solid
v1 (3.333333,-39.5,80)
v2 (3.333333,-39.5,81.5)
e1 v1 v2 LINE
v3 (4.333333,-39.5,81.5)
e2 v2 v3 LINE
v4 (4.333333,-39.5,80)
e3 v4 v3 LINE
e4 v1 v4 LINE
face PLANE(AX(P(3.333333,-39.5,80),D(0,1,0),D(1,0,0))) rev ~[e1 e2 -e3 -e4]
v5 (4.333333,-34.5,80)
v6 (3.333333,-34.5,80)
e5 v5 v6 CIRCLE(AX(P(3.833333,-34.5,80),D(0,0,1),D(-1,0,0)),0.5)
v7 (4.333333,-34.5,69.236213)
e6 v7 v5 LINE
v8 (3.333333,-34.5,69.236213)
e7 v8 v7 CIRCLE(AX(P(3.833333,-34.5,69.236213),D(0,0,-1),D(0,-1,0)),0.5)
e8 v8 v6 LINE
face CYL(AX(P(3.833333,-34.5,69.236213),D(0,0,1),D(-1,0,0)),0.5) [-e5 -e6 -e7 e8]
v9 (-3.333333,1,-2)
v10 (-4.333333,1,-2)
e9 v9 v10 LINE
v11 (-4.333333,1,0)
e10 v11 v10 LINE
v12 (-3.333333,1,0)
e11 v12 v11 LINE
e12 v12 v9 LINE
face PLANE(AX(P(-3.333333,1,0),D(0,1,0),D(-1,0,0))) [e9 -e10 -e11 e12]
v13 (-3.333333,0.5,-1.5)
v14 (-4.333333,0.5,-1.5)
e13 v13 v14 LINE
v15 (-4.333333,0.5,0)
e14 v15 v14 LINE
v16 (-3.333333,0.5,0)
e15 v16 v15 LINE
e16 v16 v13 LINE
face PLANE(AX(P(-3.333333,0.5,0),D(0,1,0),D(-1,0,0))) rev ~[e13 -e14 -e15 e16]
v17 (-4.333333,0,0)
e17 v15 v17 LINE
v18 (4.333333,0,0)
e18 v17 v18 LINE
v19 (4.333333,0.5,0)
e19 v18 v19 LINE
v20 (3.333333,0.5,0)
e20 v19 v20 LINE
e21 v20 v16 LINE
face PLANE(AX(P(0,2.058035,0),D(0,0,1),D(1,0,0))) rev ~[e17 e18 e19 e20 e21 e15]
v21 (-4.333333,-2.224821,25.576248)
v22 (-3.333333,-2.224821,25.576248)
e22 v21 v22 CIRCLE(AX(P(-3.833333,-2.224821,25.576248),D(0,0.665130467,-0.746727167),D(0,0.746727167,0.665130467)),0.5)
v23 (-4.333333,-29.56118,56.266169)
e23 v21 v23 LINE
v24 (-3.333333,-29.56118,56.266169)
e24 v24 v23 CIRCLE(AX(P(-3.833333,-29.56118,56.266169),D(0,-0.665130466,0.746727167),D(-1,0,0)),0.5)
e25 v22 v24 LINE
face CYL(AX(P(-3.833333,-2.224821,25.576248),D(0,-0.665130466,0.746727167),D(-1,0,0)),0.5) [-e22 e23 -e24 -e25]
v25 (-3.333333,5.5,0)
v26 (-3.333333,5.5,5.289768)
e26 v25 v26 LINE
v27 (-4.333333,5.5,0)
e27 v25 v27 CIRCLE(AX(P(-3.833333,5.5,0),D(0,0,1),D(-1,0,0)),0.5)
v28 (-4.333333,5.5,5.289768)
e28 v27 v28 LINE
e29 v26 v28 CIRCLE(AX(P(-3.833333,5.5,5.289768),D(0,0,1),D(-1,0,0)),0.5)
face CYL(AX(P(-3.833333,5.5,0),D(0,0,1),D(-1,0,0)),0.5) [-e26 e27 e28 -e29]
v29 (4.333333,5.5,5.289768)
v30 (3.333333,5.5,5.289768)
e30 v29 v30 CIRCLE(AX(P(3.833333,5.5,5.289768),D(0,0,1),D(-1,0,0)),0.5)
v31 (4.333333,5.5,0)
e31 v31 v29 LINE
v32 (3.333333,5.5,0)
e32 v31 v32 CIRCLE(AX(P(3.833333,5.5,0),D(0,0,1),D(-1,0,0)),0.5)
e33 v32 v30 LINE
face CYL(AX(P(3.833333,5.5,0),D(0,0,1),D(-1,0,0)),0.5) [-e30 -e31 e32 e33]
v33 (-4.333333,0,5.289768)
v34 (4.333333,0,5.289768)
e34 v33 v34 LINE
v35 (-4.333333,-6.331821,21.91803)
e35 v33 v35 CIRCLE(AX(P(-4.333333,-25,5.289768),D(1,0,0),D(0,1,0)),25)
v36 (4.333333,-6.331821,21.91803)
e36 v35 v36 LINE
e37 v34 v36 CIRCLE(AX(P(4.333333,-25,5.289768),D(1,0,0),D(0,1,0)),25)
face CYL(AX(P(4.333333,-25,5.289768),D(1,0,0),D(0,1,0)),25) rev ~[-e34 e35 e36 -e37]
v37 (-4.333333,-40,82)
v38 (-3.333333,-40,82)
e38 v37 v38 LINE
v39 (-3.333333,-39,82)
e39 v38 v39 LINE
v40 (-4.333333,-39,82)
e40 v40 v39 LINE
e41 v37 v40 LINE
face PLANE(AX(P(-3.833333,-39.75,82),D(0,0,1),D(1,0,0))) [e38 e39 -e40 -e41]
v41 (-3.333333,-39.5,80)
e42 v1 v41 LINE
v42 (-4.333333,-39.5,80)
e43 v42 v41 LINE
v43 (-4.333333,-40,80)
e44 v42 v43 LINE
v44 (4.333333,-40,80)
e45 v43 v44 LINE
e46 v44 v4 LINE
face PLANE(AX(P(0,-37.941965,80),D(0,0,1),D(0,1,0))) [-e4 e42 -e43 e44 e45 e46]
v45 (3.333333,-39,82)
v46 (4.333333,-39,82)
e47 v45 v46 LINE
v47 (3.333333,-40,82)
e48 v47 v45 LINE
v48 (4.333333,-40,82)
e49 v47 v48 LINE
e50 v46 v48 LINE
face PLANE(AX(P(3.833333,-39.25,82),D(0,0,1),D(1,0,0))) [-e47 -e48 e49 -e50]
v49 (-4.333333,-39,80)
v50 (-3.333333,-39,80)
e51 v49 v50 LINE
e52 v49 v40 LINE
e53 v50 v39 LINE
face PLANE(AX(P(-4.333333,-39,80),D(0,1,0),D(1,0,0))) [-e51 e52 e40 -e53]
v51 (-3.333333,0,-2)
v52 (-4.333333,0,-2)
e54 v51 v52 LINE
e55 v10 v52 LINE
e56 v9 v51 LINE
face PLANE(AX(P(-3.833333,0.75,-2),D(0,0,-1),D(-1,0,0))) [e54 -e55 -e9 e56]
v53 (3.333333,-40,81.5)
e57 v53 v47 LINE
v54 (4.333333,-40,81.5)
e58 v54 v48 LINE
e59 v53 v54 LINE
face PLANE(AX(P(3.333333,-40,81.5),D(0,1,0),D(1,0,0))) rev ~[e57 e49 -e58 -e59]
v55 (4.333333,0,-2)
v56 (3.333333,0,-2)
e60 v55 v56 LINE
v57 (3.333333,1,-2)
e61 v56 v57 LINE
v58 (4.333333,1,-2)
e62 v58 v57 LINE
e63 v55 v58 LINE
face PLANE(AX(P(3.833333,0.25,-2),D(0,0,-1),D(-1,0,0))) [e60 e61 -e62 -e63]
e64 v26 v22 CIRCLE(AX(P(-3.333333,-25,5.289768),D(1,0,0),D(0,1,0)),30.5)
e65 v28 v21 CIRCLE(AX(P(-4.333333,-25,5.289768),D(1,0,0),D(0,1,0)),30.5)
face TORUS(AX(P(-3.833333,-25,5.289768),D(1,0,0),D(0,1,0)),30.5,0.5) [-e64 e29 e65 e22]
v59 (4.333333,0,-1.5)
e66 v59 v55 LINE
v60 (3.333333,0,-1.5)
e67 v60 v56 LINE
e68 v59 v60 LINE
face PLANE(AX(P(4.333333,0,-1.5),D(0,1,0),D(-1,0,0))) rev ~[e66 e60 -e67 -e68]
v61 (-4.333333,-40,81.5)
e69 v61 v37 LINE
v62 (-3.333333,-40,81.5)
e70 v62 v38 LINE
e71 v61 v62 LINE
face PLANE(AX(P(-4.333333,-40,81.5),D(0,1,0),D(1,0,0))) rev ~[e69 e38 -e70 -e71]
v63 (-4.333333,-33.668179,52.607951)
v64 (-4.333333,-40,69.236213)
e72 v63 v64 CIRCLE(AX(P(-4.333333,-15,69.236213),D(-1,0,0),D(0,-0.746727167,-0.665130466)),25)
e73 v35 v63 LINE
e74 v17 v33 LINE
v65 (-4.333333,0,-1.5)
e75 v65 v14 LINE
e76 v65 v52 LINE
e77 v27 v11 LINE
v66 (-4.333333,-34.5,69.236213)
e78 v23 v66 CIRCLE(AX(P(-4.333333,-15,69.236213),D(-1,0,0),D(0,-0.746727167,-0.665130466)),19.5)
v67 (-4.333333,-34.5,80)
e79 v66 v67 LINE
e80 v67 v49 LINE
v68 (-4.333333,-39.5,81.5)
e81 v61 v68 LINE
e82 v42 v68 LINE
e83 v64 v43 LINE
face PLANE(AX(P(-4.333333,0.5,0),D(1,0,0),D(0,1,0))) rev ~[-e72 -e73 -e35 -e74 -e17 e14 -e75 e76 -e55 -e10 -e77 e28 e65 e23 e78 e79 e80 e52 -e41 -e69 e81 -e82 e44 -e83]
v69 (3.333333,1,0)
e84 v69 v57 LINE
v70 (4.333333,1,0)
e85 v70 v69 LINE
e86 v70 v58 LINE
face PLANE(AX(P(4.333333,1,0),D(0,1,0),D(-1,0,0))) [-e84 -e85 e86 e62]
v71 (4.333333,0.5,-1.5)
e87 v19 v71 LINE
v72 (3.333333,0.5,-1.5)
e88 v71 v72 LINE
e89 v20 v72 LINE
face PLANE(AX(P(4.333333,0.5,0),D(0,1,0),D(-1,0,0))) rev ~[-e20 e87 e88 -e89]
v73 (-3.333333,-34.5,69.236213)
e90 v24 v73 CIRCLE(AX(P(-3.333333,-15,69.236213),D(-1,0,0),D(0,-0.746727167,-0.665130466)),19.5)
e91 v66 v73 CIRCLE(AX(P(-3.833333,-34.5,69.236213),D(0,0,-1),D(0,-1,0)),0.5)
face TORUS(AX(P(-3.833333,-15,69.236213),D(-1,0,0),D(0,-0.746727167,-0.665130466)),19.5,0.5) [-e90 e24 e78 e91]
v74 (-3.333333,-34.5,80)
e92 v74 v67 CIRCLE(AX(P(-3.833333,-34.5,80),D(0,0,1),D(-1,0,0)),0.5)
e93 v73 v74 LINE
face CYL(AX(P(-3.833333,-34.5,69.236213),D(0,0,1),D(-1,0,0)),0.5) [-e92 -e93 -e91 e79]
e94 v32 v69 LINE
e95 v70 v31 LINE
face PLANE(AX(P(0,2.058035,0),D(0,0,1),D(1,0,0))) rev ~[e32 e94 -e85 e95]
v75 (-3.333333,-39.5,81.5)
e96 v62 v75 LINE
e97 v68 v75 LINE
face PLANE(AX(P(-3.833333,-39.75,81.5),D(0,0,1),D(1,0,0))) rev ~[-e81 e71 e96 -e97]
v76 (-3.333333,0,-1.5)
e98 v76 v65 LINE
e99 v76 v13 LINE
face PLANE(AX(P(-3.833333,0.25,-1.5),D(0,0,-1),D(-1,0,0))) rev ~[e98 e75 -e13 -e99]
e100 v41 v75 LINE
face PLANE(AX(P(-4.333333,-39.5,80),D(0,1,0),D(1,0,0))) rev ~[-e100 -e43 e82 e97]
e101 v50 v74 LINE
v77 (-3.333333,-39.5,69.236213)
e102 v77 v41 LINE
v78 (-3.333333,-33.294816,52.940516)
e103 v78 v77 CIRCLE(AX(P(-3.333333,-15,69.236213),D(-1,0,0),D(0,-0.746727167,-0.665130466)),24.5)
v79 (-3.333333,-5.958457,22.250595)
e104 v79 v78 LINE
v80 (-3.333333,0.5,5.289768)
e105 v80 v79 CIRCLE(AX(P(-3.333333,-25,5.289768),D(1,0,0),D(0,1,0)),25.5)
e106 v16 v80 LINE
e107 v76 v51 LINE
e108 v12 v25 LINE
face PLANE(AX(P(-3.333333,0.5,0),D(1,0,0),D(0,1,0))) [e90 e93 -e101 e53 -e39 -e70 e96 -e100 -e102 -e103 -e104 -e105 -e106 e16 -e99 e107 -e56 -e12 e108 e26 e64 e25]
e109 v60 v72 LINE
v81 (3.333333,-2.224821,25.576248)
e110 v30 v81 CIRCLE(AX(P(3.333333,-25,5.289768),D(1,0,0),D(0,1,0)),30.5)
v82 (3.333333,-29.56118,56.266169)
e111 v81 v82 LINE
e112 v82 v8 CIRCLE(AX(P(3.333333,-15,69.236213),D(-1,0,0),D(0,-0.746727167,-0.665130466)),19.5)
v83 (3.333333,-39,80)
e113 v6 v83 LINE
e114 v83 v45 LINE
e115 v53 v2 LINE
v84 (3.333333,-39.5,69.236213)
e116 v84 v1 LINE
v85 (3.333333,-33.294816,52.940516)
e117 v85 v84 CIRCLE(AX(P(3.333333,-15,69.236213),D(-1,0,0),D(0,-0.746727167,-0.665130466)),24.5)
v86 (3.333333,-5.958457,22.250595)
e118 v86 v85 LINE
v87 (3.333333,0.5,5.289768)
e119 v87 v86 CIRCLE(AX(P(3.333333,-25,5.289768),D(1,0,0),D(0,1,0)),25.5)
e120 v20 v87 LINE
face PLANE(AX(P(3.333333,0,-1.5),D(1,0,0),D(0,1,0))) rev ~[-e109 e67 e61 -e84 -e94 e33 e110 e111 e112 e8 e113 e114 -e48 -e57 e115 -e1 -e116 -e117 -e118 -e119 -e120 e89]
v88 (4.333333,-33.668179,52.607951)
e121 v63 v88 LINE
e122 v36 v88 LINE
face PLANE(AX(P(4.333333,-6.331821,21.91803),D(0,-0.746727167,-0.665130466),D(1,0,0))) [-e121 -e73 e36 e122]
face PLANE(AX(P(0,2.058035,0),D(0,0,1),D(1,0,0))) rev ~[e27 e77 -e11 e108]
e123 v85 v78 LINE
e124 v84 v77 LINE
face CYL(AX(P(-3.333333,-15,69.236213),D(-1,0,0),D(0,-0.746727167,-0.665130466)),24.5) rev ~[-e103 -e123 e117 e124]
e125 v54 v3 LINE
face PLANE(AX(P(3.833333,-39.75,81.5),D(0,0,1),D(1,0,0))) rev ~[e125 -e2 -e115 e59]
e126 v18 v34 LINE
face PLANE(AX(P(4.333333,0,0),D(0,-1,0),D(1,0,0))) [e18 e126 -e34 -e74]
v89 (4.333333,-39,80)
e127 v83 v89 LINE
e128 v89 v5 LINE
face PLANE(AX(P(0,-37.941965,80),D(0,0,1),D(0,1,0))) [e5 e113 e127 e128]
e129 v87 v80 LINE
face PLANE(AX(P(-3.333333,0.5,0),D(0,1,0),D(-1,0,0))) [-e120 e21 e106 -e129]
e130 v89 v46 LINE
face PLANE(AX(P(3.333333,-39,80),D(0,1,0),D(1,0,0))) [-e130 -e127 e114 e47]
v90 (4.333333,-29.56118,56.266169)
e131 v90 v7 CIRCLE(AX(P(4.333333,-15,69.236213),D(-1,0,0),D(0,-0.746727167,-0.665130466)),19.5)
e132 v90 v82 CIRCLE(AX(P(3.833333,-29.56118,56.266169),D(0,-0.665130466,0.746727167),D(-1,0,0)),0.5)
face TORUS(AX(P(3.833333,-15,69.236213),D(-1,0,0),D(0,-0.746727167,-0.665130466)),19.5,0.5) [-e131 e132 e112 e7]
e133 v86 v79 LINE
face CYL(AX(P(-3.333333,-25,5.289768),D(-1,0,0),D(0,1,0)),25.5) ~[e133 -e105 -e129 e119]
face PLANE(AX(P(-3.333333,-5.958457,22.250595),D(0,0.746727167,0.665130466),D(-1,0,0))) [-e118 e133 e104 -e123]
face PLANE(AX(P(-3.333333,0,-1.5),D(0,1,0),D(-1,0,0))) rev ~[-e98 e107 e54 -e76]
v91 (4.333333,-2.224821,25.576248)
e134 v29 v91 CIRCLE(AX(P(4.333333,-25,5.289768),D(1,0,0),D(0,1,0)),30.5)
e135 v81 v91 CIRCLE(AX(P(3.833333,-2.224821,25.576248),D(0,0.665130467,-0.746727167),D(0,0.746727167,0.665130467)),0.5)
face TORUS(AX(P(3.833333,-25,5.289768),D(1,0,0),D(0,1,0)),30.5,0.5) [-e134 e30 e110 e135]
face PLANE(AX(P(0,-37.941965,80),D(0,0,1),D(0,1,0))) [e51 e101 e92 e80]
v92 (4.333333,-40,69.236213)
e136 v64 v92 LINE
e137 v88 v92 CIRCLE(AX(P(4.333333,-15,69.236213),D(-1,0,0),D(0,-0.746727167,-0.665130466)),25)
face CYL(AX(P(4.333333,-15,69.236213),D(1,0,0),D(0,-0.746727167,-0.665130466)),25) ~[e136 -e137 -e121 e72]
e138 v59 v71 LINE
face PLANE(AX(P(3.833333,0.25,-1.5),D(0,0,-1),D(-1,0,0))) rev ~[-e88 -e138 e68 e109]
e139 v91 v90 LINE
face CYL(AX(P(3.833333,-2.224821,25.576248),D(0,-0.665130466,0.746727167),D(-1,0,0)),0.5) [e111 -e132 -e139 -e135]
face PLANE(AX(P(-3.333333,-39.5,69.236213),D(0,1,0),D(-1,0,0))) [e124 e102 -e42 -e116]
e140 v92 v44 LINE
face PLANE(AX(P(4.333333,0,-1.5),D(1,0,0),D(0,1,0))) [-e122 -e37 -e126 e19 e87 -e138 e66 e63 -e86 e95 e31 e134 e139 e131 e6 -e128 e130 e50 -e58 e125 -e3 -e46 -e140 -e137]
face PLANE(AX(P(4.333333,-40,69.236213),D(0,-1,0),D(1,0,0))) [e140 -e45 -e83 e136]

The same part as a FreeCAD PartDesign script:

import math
import FreeCAD as App
import Part
import Sketcher

V = App.Vector


def add_polygon(sketch, points):
    """Adds a closed chain of lines whose ends are joined by coincident constraints."""
    first, n = sketch.GeometryCount, len(points)
    for a, b in zip(points, points[1:] + points[:1]):
        sketch.addGeometry(Part.LineSegment(App.Vector(*a, 0), App.Vector(*b, 0)), False)
    for i in range(n):
        sketch.addConstraint(Sketcher.Constraint("Coincident", first + i, 2, first + (i + 1) % n, 1))

doc = App.newDocument("Part")
params = doc.addObject("Spreadsheet::Sheet", "Params")
for row, (alias, value) in enumerate([
    ("sketch1_radius", "0.5 mm"),
    ("sketch1_height", "5 mm"),
    ("sketch1_height2", "5.5 mm"),
    ("sketch2_radius", "25 mm"),
    ("sketch3_width", "1 mm"),
    ("sketch3_height", "0.5 mm"),
    ("pad1_length", "2 mm"),
    ("sketch4_width", "1 mm"),
    ("sketch4_height", "0.5 mm"),
    ("pad2_length", "0.5 mm"),
    ("sketch5_width", "1 mm"),
    ("sketch5_height", "0.5 mm"),
    ("pad3_length", "2 mm"),
    ("sketch6_width", "1 mm"),
    ("sketch6_height", "0.5 mm"),
    ("pad4_length", "0.5 mm"),
], start=1):
    params.set(f"A{row}", alias)
    params.set(f"B{row}", "=" + value)
    params.setAlias(f"B{row}", alias)

body = doc.addObject("PartDesign::Body", "Body")

sketch1 = body.newObject("Sketcher::SketchObject", "Sketch")
sketch1.AttachmentSupport = (doc.getObject("XY_Plane"), [""])
sketch1.MapMode = "FlatFace"
sketch1.addGeometry([
    Part.ArcOfCircle(Part.Circle(V(3.833333, 5.5, 0), V(0, 0, 1), 0.5), math.radians(0), math.radians(180)),
    Part.LineSegment(V(3.333333, 5.5, 0), V(3.333333, 0.5, 0)),
    Part.LineSegment(V(3.333333, 0.5, 0), V(-3.333333, 0.5, 0)),
    Part.LineSegment(V(-3.333333, 0.5, 0), V(-3.333333, 5.5, 0)),
    Part.ArcOfCircle(Part.Circle(V(-3.833333, 5.5, 0), V(0, 0, 1), 0.5), math.radians(0), math.radians(180)),
    Part.LineSegment(V(-4.333333, 5.5, 0), V(-4.333333, 0, 0)),
    Part.LineSegment(V(-4.333333, 0, 0), V(4.333333, 0, 0)),
    Part.LineSegment(V(4.333333, 0, 0), V(4.333333, 5.5, 0)),
], False)
sketch1.addConstraint([
    Sketcher.Constraint("Tangent", 0, 2, 1, 1),
    Sketcher.Constraint("Coincident", 1, 2, 2, 1),
    Sketcher.Constraint("Coincident", 2, 2, 3, 1),
    Sketcher.Constraint("Tangent", 3, 2, 4, 1),
    Sketcher.Constraint("Tangent", 4, 2, 5, 1),
    Sketcher.Constraint("Coincident", 5, 2, 6, 1),
    Sketcher.Constraint("Coincident", 6, 2, 7, 1),
    Sketcher.Constraint("Tangent", 7, 2, 0, 1),
    Sketcher.Constraint("Vertical", 1),
    Sketcher.Constraint("Horizontal", 2),
    Sketcher.Constraint("Vertical", 3),
    Sketcher.Constraint("Vertical", 5),
    Sketcher.Constraint("Horizontal", 6),
    Sketcher.Constraint("Vertical", 7),
    Sketcher.Constraint("Equal", 0, 4),
    Sketcher.Constraint("Symmetric", 5, 2, 6, 2, -1, 1),
    Sketcher.Constraint("Horizontal", 0, 3, 4, 3),
    Sketcher.Constraint("Radius", 0, 0.5),
    Sketcher.Constraint("DistanceY", 1, 2, 1, 1, 5.0),
    Sketcher.Constraint("DistanceY", 5, 2, 5, 1, 5.5),
    Sketcher.Constraint("DistanceX", 2, 2, 2, 1, 6.666667),
])
sketch1.setExpression("Constraints[17]", "Params.sketch1_radius")
sketch1.setExpression("Constraints[18]", "Params.sketch1_height")
sketch1.setExpression("Constraints[19]", "Params.sketch1_height2")

sketch2 = body.newObject("Sketcher::SketchObject", "Sketch001")
sketch2.AttachmentSupport = (doc.getObject("YZ_Plane"), [""])
sketch2.MapMode = "FlatFace"
sketch2.addGeometry([
    Part.LineSegment(V(0, 0, 0), V(0, 5.289768, 0)),
    Part.ArcOfCircle(Part.Circle(V(-25, 5.289768, 0), V(0, 0, 1), 25), math.radians(0), math.radians(41.692335)),
    Part.LineSegment(V(-6.331821, 21.91803, 0), V(-33.668179, 52.607951, 0)),
    Part.ArcOfCircle(Part.Circle(V(-15, 69.236213, 0), V(0, 0, 1), 25), math.radians(180), math.radians(221.692335)),
    Part.LineSegment(V(-40, 69.236213, 0), V(-40, 80, 0)),
], False)
sketch2.addConstraint([
    Sketcher.Constraint("Tangent", 0, 2, 1, 1),
    Sketcher.Constraint("Tangent", 1, 2, 2, 1),
    Sketcher.Constraint("Tangent", 2, 2, 3, 2),
    Sketcher.Constraint("Tangent", 3, 1, 4, 1),
    Sketcher.Constraint("Vertical", 0),
    Sketcher.Constraint("Vertical", 4),
    Sketcher.Constraint("Coincident", 0, 1, -1, 1),
    Sketcher.Constraint("Equal", 1, 3),
    Sketcher.Constraint("Radius", 1, 25.0),
    Sketcher.Constraint("DistanceX", 3, 3, -1, 1, 15.0),
    Sketcher.Constraint("DistanceY", -1, 1, 4, 2, 80.0),
    Sketcher.Constraint("DistanceY", 0, 1, 0, 2, 5.289768),
    Sketcher.Constraint("DistanceY", 4, 1, 4, 2, 10.763787),
])
sketch2.setExpression("Constraints[8]", "Params.sketch2_radius")
doc.recompute()

additivepipe = body.newObject("PartDesign::AdditivePipe", "AdditivePipe")
additivepipe.Profile = sketch1
additivepipe.Spine = (sketch2, ["Edge1", "Edge2", "Edge3", "Edge4", "Edge5"])

sketch3 = body.newObject("Sketcher::SketchObject", "Sketch002")
sketch3.AttachmentSupport = (doc.getObject("XY_Plane"), [""])
sketch3.MapMode = "FlatFace"
sketch3.AttachmentOffset = App.Placement(V(0, 0, 80), App.Rotation())
add_polygon(sketch3, [(-4.333333, -39), (-4.333333, -39.5), (-3.333333, -39.5), (-3.333333, -39)])
add_polygon(sketch3, [(3.333333, -39), (3.333333, -39.5), (4.333333, -39.5), (4.333333, -39)])
sketch3.addConstraint([
    Sketcher.Constraint("Vertical", 0),
    Sketcher.Constraint("Horizontal", 1),
    Sketcher.Constraint("Vertical", 2),
    Sketcher.Constraint("Horizontal", 3),
    Sketcher.Constraint("Vertical", 4),
    Sketcher.Constraint("Horizontal", 5),
    Sketcher.Constraint("Vertical", 6),
    Sketcher.Constraint("Horizontal", 7),
    Sketcher.Constraint("Symmetric", 1, 2, 4, 2, -2),
    Sketcher.Constraint("Symmetric", 3, 2, 6, 2, -2),
    Sketcher.Constraint("DistanceX", 1, 1, 1, 2, 1.0),
    Sketcher.Constraint("DistanceY", 0, 2, 0, 1, 0.5),
    Sketcher.Constraint("DistanceY", 2, 2, -1, 1, 39.0),
    Sketcher.Constraint("DistanceX", 0, 2, -1, 1, 4.333333),
])
sketch3.setExpression("Constraints[18]", "Params.sketch3_width")
sketch3.setExpression("Constraints[19]", "Params.sketch3_height")
pad1 = body.newObject("PartDesign::Pad", "Pad")
pad1.Profile = sketch3
pad1.setExpression("Length", "Params.pad1_length")

sketch4 = body.newObject("Sketcher::SketchObject", "Sketch003")
sketch4.AttachmentSupport = (doc.getObject("XY_Plane"), [""])
sketch4.MapMode = "FlatFace"
sketch4.AttachmentOffset = App.Placement(V(0, 0, 81.5), App.Rotation())
add_polygon(sketch4, [(-4.333333, -39.5), (-4.333333, -40), (-3.333333, -40), (-3.333333, -39.5)])
add_polygon(sketch4, [(3.333333, -39.5), (3.333333, -40), (4.333333, -40), (4.333333, -39.5)])
sketch4.addConstraint([
    Sketcher.Constraint("Vertical", 0),
    Sketcher.Constraint("Horizontal", 1),
    Sketcher.Constraint("Vertical", 2),
    Sketcher.Constraint("Horizontal", 3),
    Sketcher.Constraint("Vertical", 4),
    Sketcher.Constraint("Horizontal", 5),
    Sketcher.Constraint("Vertical", 6),
    Sketcher.Constraint("Horizontal", 7),
    Sketcher.Constraint("Symmetric", 1, 2, 4, 2, -2),
    Sketcher.Constraint("Symmetric", 3, 2, 6, 2, -2),
    Sketcher.Constraint("DistanceX", 1, 1, 1, 2, 1.0),
    Sketcher.Constraint("DistanceY", 0, 2, 0, 1, 0.5),
    Sketcher.Constraint("DistanceY", 0, 2, -1, 1, 40.0),
    Sketcher.Constraint("DistanceX", 0, 2, -1, 1, 4.333333),
])
sketch4.setExpression("Constraints[18]", "Params.sketch4_width")
sketch4.setExpression("Constraints[19]", "Params.sketch4_height")
pad2 = body.newObject("PartDesign::Pad", "Pad001")
pad2.Profile = sketch4
pad2.setExpression("Length", "Params.pad2_length")

sketch5 = body.newObject("Sketcher::SketchObject", "Sketch004")
sketch5.AttachmentSupport = (doc.getObject("XY_Plane"), [""])
sketch5.MapMode = "FlatFace"
add_polygon(sketch5, [(-3.333333, 1), (-3.333333, 0.5), (-4.333333, 0.5), (-4.333333, 1)])
add_polygon(sketch5, [(4.333333, 1), (4.333333, 0.5), (3.333333, 0.5), (3.333333, 1)])
sketch5.addConstraint([
    Sketcher.Constraint("Vertical", 0),
    Sketcher.Constraint("Horizontal", 1),
    Sketcher.Constraint("Vertical", 2),
    Sketcher.Constraint("Horizontal", 3),
    Sketcher.Constraint("Vertical", 4),
    Sketcher.Constraint("Horizontal", 5),
    Sketcher.Constraint("Vertical", 6),
    Sketcher.Constraint("Horizontal", 7),
    Sketcher.Constraint("Symmetric", 1, 2, 4, 2, -2),
    Sketcher.Constraint("Symmetric", 3, 2, 6, 2, -2),
    Sketcher.Constraint("DistanceX", 1, 2, 1, 1, 1.0),
    Sketcher.Constraint("DistanceY", 0, 2, 0, 1, 0.5),
    Sketcher.Constraint("DistanceY", -1, 1, 2, 2, 1.0),
    Sketcher.Constraint("DistanceX", 0, 2, -1, 1, 3.333333),
])
sketch5.setExpression("Constraints[18]", "Params.sketch5_width")
sketch5.setExpression("Constraints[19]", "Params.sketch5_height")
pad3 = body.newObject("PartDesign::Pad", "Pad002")
pad3.Profile = sketch5
pad3.setExpression("Length", "Params.pad3_length")
pad3.Reversed = True

sketch6 = body.newObject("Sketcher::SketchObject", "Sketch005")
sketch6.AttachmentSupport = (doc.getObject("XY_Plane"), [""])
sketch6.MapMode = "FlatFace"
sketch6.AttachmentOffset = App.Placement(V(0, 0, -1.5), App.Rotation())
add_polygon(sketch6, [(4.333333, 0.5), (4.333333, 0), (3.333333, 0), (3.333333, 0.5)])
add_polygon(sketch6, [(-3.333333, 0.5), (-3.333333, 0), (-4.333333, 0), (-4.333333, 0.5)])
sketch6.addConstraint([
    Sketcher.Constraint("Vertical", 0),
    Sketcher.Constraint("Horizontal", 1),
    Sketcher.Constraint("Vertical", 2),
    Sketcher.Constraint("Horizontal", 3),
    Sketcher.Constraint("Vertical", 4),
    Sketcher.Constraint("Horizontal", 5),
    Sketcher.Constraint("Vertical", 6),
    Sketcher.Constraint("Horizontal", 7),
    Sketcher.Constraint("Symmetric", 1, 2, 4, 2, -1, 1),
    Sketcher.Constraint("Symmetric", 0, 2, 5, 2, -2),
    Sketcher.Constraint("Horizontal", 3, 2, 6, 2),
    Sketcher.Constraint("DistanceX", 1, 2, 1, 1, 1.0),
    Sketcher.Constraint("DistanceY", 0, 2, 0, 1, 0.5),
    Sketcher.Constraint("DistanceX", -1, 1, 0, 2, 4.333333),
])
sketch6.setExpression("Constraints[19]", "Params.sketch6_width")
sketch6.setExpression("Constraints[20]", "Params.sketch6_height")
pad4 = body.newObject("PartDesign::Pad", "Pad003")
pad4.Profile = sketch6
pad4.setExpression("Length", "Params.pad4_length")
pad4.Reversed = True

doc.recompute()
